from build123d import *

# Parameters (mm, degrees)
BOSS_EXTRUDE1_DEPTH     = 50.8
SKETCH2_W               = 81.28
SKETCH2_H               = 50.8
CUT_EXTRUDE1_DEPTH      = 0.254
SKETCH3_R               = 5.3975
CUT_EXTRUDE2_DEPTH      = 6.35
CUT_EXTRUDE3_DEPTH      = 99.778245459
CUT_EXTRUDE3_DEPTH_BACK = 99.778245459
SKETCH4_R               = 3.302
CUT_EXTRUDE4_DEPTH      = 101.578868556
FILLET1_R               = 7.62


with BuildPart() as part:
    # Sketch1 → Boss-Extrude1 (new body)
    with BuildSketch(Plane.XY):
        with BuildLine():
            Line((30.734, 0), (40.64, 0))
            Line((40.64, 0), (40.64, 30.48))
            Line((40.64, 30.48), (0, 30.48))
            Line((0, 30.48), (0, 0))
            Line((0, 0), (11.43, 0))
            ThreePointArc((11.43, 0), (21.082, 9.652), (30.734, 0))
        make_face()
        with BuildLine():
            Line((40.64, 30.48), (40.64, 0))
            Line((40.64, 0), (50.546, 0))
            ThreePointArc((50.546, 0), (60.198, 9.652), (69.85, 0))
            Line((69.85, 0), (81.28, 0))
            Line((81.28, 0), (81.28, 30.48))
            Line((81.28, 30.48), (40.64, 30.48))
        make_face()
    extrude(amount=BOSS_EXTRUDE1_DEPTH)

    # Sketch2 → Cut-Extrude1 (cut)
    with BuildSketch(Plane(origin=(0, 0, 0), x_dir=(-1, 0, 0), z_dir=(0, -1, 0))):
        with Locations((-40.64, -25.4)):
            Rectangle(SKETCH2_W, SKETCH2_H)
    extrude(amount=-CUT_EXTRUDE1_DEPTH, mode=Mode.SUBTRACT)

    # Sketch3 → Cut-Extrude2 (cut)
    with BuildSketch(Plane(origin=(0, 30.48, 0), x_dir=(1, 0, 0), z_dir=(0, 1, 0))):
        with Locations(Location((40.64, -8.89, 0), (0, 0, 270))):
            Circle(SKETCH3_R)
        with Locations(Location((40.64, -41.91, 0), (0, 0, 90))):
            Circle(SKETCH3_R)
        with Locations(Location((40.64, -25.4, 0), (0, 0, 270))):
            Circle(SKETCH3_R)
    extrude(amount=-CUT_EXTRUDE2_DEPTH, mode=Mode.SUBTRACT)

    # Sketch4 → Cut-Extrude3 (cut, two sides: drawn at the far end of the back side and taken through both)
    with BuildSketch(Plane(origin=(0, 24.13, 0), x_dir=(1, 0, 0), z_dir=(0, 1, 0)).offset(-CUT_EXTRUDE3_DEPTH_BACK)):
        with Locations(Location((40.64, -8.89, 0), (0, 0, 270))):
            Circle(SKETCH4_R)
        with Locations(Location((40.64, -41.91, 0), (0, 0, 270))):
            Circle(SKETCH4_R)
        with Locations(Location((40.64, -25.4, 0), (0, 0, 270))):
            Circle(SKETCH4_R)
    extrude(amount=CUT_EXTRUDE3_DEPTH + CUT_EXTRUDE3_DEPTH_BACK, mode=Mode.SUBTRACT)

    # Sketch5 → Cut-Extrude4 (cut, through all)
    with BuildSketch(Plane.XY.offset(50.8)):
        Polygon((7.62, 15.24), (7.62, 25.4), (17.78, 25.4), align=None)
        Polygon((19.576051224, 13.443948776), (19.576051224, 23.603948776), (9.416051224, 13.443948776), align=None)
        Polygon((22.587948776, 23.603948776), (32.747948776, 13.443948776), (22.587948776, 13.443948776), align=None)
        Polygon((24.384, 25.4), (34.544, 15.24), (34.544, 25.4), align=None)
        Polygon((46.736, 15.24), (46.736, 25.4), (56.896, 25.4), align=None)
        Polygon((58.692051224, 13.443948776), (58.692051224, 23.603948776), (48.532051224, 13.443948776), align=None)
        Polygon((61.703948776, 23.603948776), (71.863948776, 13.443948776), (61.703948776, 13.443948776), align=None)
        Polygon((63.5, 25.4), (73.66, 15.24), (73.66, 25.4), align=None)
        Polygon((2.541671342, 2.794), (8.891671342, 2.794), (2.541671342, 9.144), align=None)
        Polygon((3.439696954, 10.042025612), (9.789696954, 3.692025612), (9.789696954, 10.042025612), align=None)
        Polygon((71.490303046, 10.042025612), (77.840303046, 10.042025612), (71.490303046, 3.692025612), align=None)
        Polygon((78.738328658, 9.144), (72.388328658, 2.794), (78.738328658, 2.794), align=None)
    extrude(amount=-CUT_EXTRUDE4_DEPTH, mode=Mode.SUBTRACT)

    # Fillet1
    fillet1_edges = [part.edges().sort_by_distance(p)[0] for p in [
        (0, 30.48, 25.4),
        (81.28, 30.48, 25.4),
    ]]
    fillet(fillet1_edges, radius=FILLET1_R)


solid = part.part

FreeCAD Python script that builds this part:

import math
import FreeCAD as App
import Part
import Sketcher
Q = App.Units.Quantity


def edges_at(feature, points):
    """Names of the edges that pass closest to the given points."""
    edges = feature.Shape.Edges
    near = lambda p: min(range(len(edges)), key=lambda i: edges[i].distToShape(Part.Vertex(*p))[0])
    return sorted({f"Edge{near(p) + 1}" for p in points})


def add_polygon(sketch, points):
    """Adds a closed chain of lines whose ends are joined by coincident constraints."""
    first, n = sketch.GeometryCount, len(points)
    for a, b in zip(points, points[1:] + points[:1]):
        sketch.addGeometry(Part.LineSegment(App.Vector(*a, 0), App.Vector(*b, 0)), False)
    for i in range(n):
        sketch.addConstraint(Sketcher.Constraint("Coincident", first + i, 2, first + (i + 1) % n, 1))

doc = App.newDocument("Part")
body = doc.addObject("PartDesign::Body", "Body")

sketch1 = body.newObject("Sketcher::SketchObject", "Sketch")
sketch1.AttachmentSupport = (doc.getObject("XY_Plane"), [""])
sketch1.MapMode = "FlatFace"
sketch1.addGeometry([
    Part.LineSegment(App.Vector(31, 0, 0), App.Vector(51, 0, 0)),
    Part.ArcOfCircle(Part.Circle(App.Vector(60, 0, 0), App.Vector(0, 0, 1), 10), math.radians(0), math.radians(180)),
    Part.LineSegment(App.Vector(70, 0, 0), App.Vector(81, 0, 0)),
    Part.LineSegment(App.Vector(81, 0, 0), App.Vector(81, 30, 0)),
    Part.LineSegment(App.Vector(81, 30, 0), App.Vector(0, 30, 0)),
    Part.LineSegment(App.Vector(0, 30, 0), App.Vector(0, 0, 0)),
    Part.LineSegment(App.Vector(0, 0, 0), App.Vector(11, 0, 0)),
    Part.ArcOfCircle(Part.Circle(App.Vector(21, 0, 0), App.Vector(0, 0, 1), 10), math.radians(0), math.radians(180)),
], False)
sketch1.addConstraint([
    Sketcher.Constraint("Coincident", 0, 2, 1, 2),
    Sketcher.Constraint("Coincident", 1, 1, 2, 1),
    Sketcher.Constraint("Coincident", 2, 2, 3, 1),
    Sketcher.Constraint("Coincident", 3, 2, 4, 1),
    Sketcher.Constraint("Coincident", 4, 2, 5, 1),
    Sketcher.Constraint("Coincident", 5, 2, 6, 1),
    Sketcher.Constraint("Coincident", 6, 2, 7, 2),
    Sketcher.Constraint("Coincident", 7, 1, 0, 1),
    Sketcher.Constraint("Horizontal", 0),
    Sketcher.Constraint("Horizontal", 2),
    Sketcher.Constraint("Vertical", 3),
    Sketcher.Constraint("Horizontal", 4),
    Sketcher.Constraint("Vertical", 5),
    Sketcher.Constraint("Horizontal", 6),
    Sketcher.Constraint("Coincident", 5, 2, -1, 1),
    Sketcher.Constraint("Equal", 1, 7),
    Sketcher.Constraint("PointOnObject", 1, 3, -1),
    Sketcher.Constraint("PointOnObject", 7, 3, -1),
    Sketcher.Constraint("PointOnObject", 0, 2, -1),
    Sketcher.Constraint("PointOnObject", 1, 1, -1),
    Sketcher.Constraint("Equal", 2, 6),
    Sketcher.Constraint("Radius", 1, Q("0.38 in")),
    Sketcher.Constraint("DistanceX", 4, 2, 4, 1, Q("3.2 in")),
    Sketcher.Constraint("DistanceY", 3, 1, 3, 2, Q("1.2 in")),
    Sketcher.Constraint("DistanceX", 0, 1, 0, 2, Q("0.78 in")),
])
pad1 = body.newObject("PartDesign::Pad", "Pad")
pad1.Profile = sketch1
pad1.Length = Q("2 in")

sketch2 = body.newObject("Sketcher::SketchObject", "Sketch001")
sketch2.AttachmentSupport = (doc.getObject("XZ_Plane"), [""])
sketch2.MapMode = "FlatFace"
add_polygon(sketch2, [(81, 0), (81, 51), (0, 51), (0, 0)])
sketch2.addConstraint([
    Sketcher.Constraint("Vertical", 0),
    Sketcher.Constraint("Horizontal", 1),
    Sketcher.Constraint("Vertical", 2),
    Sketcher.Constraint("Horizontal", 3),
    Sketcher.Constraint("Coincident", 2, 2, -1, 1),
    Sketcher.Constraint("DistanceY", 0, 1, 0, 2, Q("2 in")),
    Sketcher.Constraint("DistanceX", 1, 2, 1, 1, Q("3.2 in")),
])
pocket1 = body.newObject("PartDesign::Pocket", "Pocket")
pocket1.Profile = sketch2
pocket1.Length = Q("0.01 in")

sketch3 = body.newObject("Sketcher::SketchObject", "Sketch002")
sketch3.AttachmentSupport = (doc.getObject("XZ_Plane"), [""])
sketch3.MapMode = "FlatFace"
sketch3.AttachmentOffset = App.Placement(App.Vector(0, 0, -1.2 * 25.4), App.Rotation())
sketch3.addGeometry([
    Part.Circle(App.Vector(41, 9, 0), App.Vector(0, 0, 1), 5),
    Part.Circle(App.Vector(41, 42, 0), App.Vector(0, 0, 1), 5),
    Part.Circle(App.Vector(41, 25, 0), App.Vector(0, 0, 1), 5),
], False)
sketch3.addConstraint([
    Sketcher.Constraint("Equal", 0, 1),
    Sketcher.Constraint("Equal", 1, 2),
    Sketcher.Constraint("Vertical", 0, 3, 1, 3),
    Sketcher.Constraint("Vertical", 1, 3, 2, 3),
    Sketcher.Constraint("Diameter", 0, Q("0.425 in")),
    Sketcher.Constraint("DistanceY", -1, 1, 2, 3, Q("1 in")),
    Sketcher.Constraint("DistanceX", -1, 1, 0, 3, Q("1.6 in")),
    Sketcher.Constraint("DistanceY", 0, 3, 1, 3, Q("1.3 in")),
    Sketcher.Constraint("DistanceY", -1, 1, 0, 3, Q("0.35 in")),
])
pocket2 = body.newObject("PartDesign::Pocket", "Pocket001")
pocket2.Profile = sketch3
pocket2.Length = Q("0.25 in")
pocket2.Reversed = True

sketch4 = body.newObject("Sketcher::SketchObject", "Sketch003")
sketch4.AttachmentSupport = (doc.getObject("XZ_Plane"), [""])
sketch4.MapMode = "FlatFace"
sketch4.AttachmentOffset = App.Placement(App.Vector(0, 0, -0.95 * 25.4), App.Rotation())
sketch4.addGeometry([
    Part.Circle(App.Vector(40.6, 8.9, 0), App.Vector(0, 0, 1), 3.3),
    Part.Circle(App.Vector(40.6, 41.9, 0), App.Vector(0, 0, 1), 3.3),
    Part.Circle(App.Vector(40.6, 25.4, 0), App.Vector(0, 0, 1), 3.3),
], False)
sketch4.addConstraint([
    Sketcher.Constraint("Equal", 0, 1),
    Sketcher.Constraint("Equal", 1, 2),
    Sketcher.Constraint("Vertical", 0, 3, 1, 3),
    Sketcher.Constraint("Vertical", 1, 3, 2, 3),
    Sketcher.Constraint("Diameter", 0, Q("0.26 in")),
    Sketcher.Constraint("DistanceY", -1, 1, 2, 3, Q("1 in")),
    Sketcher.Constraint("DistanceX", -1, 1, 0, 3, Q("1.6 in")),
    Sketcher.Constraint("DistanceY", 0, 3, 1, 3, Q("1.3 in")),
    Sketcher.Constraint("DistanceY", -1, 1, 0, 3, Q("0.35 in")),
])
pocket3 = body.newObject("PartDesign::Pocket", "Pocket002")
pocket3.Profile = sketch4
pocket3.Type = "ThroughAll"
pocket3.Midplane = True

sketch5 = body.newObject("Sketcher::SketchObject", "Sketch004")
sketch5.AttachmentSupport = (doc.getObject("XY_Plane"), [""])
sketch5.MapMode = "FlatFace"
sketch5.AttachmentOffset = App.Placement(App.Vector(0, 0, 2 * 25.4), App.Rotation())
add_polygon(sketch5, [(8, 25), (8, 15), (18, 25)])
add_polygon(sketch5, [(20, 13), (20, 24), (9, 13)])
add_polygon(sketch5, [(33, 13), (23, 24), (23, 13)])
add_polygon(sketch5, [(24, 25), (35, 15), (35, 25)])
add_polygon(sketch5, [(47, 25), (47, 15), (57, 25)])
add_polygon(sketch5, [(59, 13), (59, 24), (49, 13)])
add_polygon(sketch5, [(72, 13), (62, 24), (62, 13)])
add_polygon(sketch5, [(64, 25), (74, 15), (74, 25)])
add_polygon(sketch5, [(3, 3), (9, 3), (3, 9)])
add_polygon(sketch5, [(3, 10), (10, 4), (10, 10)])
add_polygon(sketch5, [(78, 10), (71, 10), (71, 4)])
add_polygon(sketch5, [(79, 9), (72, 3), (79, 3)])
sketch5.addConstraint([
    Sketcher.Constraint("Vertical", 0),
    Sketcher.Constraint("Horizontal", 2),
    Sketcher.Constraint("Vertical", 3),
    Sketcher.Constraint("Horizontal", 5),
    Sketcher.Constraint("Vertical", 7),
    Sketcher.Constraint("Horizontal", 8),
    Sketcher.Constraint("Vertical", 10),
    Sketcher.Constraint("Horizontal", 11),
    Sketcher.Constraint("Vertical", 12),
    Sketcher.Constraint("Horizontal", 14),
    Sketcher.Constraint("Vertical", 15),
    Sketcher.Constraint("Horizontal", 17),
    Sketcher.Constraint("Vertical", 19),
    Sketcher.Constraint("Horizontal", 20),
    Sketcher.Constraint("Vertical", 22),
    Sketcher.Constraint("Horizontal", 23),
    Sketcher.Constraint("Horizontal", 24),
    Sketcher.Constraint("Vertical", 26),
    Sketcher.Constraint("Vertical", 28),
    Sketcher.Constraint("Horizontal", 29),
    Sketcher.Constraint("Horizontal", 30),
    Sketcher.Constraint("Vertical", 31),
    Sketcher.Constraint("Horizontal", 34),
    Sketcher.Constraint("Vertical", 35),
    Sketcher.Constraint("Parallel", 1, 4),
    Sketcher.Constraint("Perpendicular", 4, 6),
    Sketcher.Constraint("Parallel", 6, 9),
    Sketcher.Constraint("Perpendicular", 9, 13),
    Sketcher.Constraint("Parallel", 13, 16),
    Sketcher.Constraint("Perpendicular", 16, 18),
    Sketcher.Constraint("Parallel", 18, 21),
    Sketcher.Constraint("Parallel", 21, 25),
    Sketcher.Constraint("Parallel", 25, 27),
    Sketcher.Constraint("Perpendicular", 27, 32),
    Sketcher.Constraint("Parallel", 32, 33),
    Sketcher.Constraint("Horizontal", 3, 2, 6, 2),
    Sketcher.Constraint("Horizontal", 5, 2, 7, 2),
    Sketcher.Constraint("Horizontal", 0, 2, 9, 2),
    Sketcher.Constraint("Horizontal", 2, 2, 10, 2),
    Sketcher.Constraint("Horizontal", 9, 2, 12, 2),
    Sketcher.Constraint("Horizontal", 11, 2, 13, 2),
    Sketcher.Constraint("Horizontal", 6, 2, 15, 2),
    Sketcher.Constraint("Horizontal", 8, 2, 16, 2),
    Sketcher.Constraint("Horizontal", 15, 2, 18, 2),
    Sketcher.Constraint("Horizontal", 17, 2, 19, 2),
    Sketcher.Constraint("Horizontal", 12, 2, 21, 2),
    Sketcher.Constraint("Horizontal", 14, 2, 22, 2),
    Sketcher.Constraint("Horizontal", 29, 2, 30, 2),
    Sketcher.Constraint("Horizontal", 27, 2, 31, 2),
    Sketcher.Constraint("Horizontal", 26, 2, 33, 2),
    Sketcher.Constraint("Horizontal", 25, 2, 35, 2),
    Sketcher.Constraint("Equal", 2, 5),
    Sketcher.Constraint("Equal", 5, 8),
    Sketcher.Constraint("Equal", 24, 29),
    Sketcher.Constraint("DistanceX", 2, 2, 2, 1, Q("0.4 in")),
    Sketcher.Constraint("DistanceY", -1, 1, 1, 2, Q("1 in")),
    Sketcher.Constraint("DistanceX", 24, 1, 24, 2, Q("0.25 in")),
    Sketcher.Constraint("DistanceX", -1, 1, 0, 2, Q("0.3 in")),
    Sketcher.Constraint("DistanceX", -1, 1, 21, 2, Q("2.9 in")),
    Sketcher.Constraint("DistanceX", -1, 1, 9, 2, Q("1.36 in")),
    Sketcher.Constraint("DistanceX", -1, 1, 12, 2, Q("1.84 in")),
    Sketcher.Constraint("DistanceY", -1, 1, 24, 2, Q("0.11 in")),
    Sketcher.Constraint("DistanceX", -1, 1, 3, 2, 19.576051),
    Sketcher.Constraint("DistanceY", -1, 1, 3, 2, 23.603949),
    Sketcher.Constraint("DistanceX", -1, 1, 6, 2, 22.587949),
    Sketcher.Constraint("DistanceX", -1, 1, 15, 2, 58.692051),
    Sketcher.Constraint("DistanceX", -1, 1, 18, 2, 61.703949),
    Sketcher.Constraint("DistanceX", -1, 1, 24, 2, 8.891671),
    Sketcher.Constraint("DistanceX", -1, 1, 33, 2, 72.388329),
    Sketcher.Constraint("DistanceX", 17, 2, 30, 2, 12.798252),
    Sketcher.Constraint("DistanceX", -1, 1, 27, 2, 9.789697),
    Sketcher.Constraint("DistanceY", -1, 1, 27, 2, 3.692026),
])
pocket4 = body.newObject("PartDesign::Pocket", "Pocket003")
pocket4.Profile = sketch5
pocket4.Type = "ThroughAll"
doc.recompute()

fillet = body.newObject("PartDesign::Fillet", "Fillet")
fillet.Base = (pocket4, edges_at(pocket4, [(0, 30.48, 25.4), (81.28, 30.48, 25.4)]))
fillet.Radius = Q("0.3 in")

doc.recompute()
